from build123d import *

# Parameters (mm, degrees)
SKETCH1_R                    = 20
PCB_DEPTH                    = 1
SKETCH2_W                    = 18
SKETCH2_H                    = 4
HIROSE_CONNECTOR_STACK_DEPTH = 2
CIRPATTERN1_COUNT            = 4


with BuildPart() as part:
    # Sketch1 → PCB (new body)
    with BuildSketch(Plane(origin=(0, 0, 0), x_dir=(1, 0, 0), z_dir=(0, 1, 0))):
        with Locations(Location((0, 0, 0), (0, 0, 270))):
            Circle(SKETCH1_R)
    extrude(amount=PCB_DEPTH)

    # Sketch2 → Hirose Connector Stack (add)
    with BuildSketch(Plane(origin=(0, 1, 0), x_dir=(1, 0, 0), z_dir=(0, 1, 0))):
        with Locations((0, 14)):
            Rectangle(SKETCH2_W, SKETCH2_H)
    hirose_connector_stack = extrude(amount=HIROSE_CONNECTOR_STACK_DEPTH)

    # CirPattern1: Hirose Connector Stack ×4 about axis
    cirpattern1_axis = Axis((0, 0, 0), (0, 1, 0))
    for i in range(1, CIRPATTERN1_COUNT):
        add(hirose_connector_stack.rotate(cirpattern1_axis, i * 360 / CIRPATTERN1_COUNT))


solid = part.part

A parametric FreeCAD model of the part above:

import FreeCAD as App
import Part
import Sketcher
from FreeCAD import Vector
Q = App.Units.Quantity

doc = App.newDocument("Part")
body = doc.addObject("PartDesign::Body", "Body")

# Sketch on XZ plane
sketch1 = doc.addObject("Sketcher::SketchObject", "Sketch")
body.addObject(sketch1)
sketch1.AttachmentSupport = (doc.XZ_Plane, [""])
sketch1.MapMode = "FlatFace"
sketch1.addGeometry(Part.Circle(Vector(0, 0, 0), Vector(0, 0, 1), 20), False)
sketch1.addConstraint([
    Sketcher.Constraint("Coincident", 0, 3, -1, 1),
    Sketcher.Constraint("Diameter", 0, Q("40 mm")),
])
pad1 = doc.addObject("PartDesign::Pad", "Pad")
body.addObject(pad1)
pad1.Profile = sketch1
pad1.Length = 1
pad1.Reversed = True

# Sketch on XZ plane
sketch2 = doc.addObject("Sketcher::SketchObject", "Sketch001")
body.addObject(sketch2)
sketch2.AttachmentSupport = (doc.XZ_Plane, [""])
sketch2.MapMode = "FlatFace"
sketch2.AttachmentOffset = App.Placement(Vector(0, 0, -1), App.Rotation())
sketch2.addGeometry([
    Part.LineSegment(Vector(-9, -16, 0), Vector(-9, -12, 0)),
    Part.LineSegment(Vector(-9, -12, 0), Vector(9, -12, 0)),
    Part.LineSegment(Vector(9, -12, 0), Vector(9, -16, 0)),
    Part.LineSegment(Vector(9, -16, 0), Vector(-9, -16, 0)),
], False)
sketch2.addConstraint([
    Sketcher.Constraint("Coincident", 0, 2, 1, 1),
    Sketcher.Constraint("Coincident", 1, 2, 2, 1),
    Sketcher.Constraint("Coincident", 2, 2, 3, 1),
    Sketcher.Constraint("Coincident", 3, 2, 0, 1),
    Sketcher.Constraint("Vertical", 0),
    Sketcher.Constraint("Horizontal", 1),
    Sketcher.Constraint("Vertical", 2),
    Sketcher.Constraint("Horizontal", 3),
    Sketcher.Constraint("DistanceX", 1, 1, 1, 2, Q("18 mm")),
    Sketcher.Constraint("DistanceY", 0, 1, 0, 2, Q("4 mm")),
    Sketcher.Constraint("DistanceX", 0, 2, -1, 1, Q("9 mm")),
    Sketcher.Constraint("DistanceY", 0, 2, -1, 1, Q("12 mm")),
])
pad2 = doc.addObject("PartDesign::Pad", "Pad001")
body.addObject(pad2)
pad2.Profile = sketch2
pad2.Length = 2
pad2.Reversed = True
doc.recompute()

polarpattern = doc.addObject("PartDesign::PolarPattern", "PolarPattern")
body.addObject(polarpattern)
polarpattern.Originals = [pad2]
polarpattern.Axis = (doc.Y_Axis, [""])
polarpattern.Angle = 360
polarpattern.Occurrences = 4
body.Tip = polarpattern

doc.recompute()
